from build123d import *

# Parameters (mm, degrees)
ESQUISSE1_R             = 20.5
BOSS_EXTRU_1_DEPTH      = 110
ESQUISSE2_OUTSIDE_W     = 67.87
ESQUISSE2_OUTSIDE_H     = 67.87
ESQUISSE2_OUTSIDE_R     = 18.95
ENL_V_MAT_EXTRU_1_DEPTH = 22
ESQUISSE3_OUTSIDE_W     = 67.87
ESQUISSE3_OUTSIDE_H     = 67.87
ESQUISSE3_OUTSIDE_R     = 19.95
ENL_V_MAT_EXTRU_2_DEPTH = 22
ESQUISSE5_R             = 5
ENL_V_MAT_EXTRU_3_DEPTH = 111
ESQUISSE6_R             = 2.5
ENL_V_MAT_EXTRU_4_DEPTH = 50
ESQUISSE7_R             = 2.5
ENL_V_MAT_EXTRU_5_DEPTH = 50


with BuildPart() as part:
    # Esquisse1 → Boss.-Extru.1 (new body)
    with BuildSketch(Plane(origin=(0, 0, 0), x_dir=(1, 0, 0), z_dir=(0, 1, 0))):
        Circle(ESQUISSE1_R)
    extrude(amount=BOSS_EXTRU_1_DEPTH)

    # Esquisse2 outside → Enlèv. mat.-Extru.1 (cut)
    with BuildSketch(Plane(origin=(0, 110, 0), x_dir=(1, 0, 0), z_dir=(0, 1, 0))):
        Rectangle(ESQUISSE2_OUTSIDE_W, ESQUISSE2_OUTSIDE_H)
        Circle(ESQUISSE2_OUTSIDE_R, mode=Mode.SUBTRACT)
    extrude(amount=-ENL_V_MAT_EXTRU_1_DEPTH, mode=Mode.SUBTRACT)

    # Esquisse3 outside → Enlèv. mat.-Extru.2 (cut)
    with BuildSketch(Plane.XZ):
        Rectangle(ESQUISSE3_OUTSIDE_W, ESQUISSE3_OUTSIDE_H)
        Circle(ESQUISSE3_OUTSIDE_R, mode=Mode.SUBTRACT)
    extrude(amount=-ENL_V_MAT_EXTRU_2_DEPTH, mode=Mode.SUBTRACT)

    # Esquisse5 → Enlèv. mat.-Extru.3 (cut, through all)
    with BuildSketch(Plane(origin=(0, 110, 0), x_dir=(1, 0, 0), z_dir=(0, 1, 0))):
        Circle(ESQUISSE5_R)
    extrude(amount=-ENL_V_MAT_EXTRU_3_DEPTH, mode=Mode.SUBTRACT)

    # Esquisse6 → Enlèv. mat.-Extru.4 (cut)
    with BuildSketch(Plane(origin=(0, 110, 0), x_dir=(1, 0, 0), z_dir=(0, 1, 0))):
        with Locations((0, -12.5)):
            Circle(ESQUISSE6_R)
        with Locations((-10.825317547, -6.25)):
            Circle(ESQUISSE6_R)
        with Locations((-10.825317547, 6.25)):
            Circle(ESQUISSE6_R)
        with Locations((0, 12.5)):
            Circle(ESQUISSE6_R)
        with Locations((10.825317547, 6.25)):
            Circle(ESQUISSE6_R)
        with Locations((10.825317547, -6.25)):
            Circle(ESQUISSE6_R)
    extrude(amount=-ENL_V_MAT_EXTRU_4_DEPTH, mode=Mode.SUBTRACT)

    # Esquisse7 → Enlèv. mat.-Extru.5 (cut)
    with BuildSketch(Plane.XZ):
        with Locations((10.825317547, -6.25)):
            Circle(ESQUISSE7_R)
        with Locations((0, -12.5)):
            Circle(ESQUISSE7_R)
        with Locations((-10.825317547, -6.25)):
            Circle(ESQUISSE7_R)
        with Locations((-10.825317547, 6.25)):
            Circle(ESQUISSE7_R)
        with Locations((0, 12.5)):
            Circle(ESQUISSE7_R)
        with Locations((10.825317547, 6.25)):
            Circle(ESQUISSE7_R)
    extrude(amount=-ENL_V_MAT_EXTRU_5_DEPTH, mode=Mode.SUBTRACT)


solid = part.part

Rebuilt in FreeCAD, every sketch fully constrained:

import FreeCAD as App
import Part
import Sketcher
from FreeCAD import Vector
Q = App.Units.Quantity

doc = App.newDocument("Part")
body = doc.addObject("PartDesign::Body", "Body")

# Sketch on XZ plane
sketch1 = body.newObject("Sketcher::SketchObject", "Sketch")
sketch1.AttachmentSupport = (doc.getObject("XZ_Plane"), [""])
sketch1.MapMode = "FlatFace"
sketch1.addGeometry(Part.Circle(Vector(0, 0, 0), Vector(0, 0, 1), 20), False)
sketch1.addConstraint(Sketcher.Constraint("Coincident", 0, 3, -1, 1))
sketch1.addConstraint(Sketcher.Constraint("Diameter", 0, Q("41 mm")))
pad1 = body.newObject("PartDesign::Pad", "Pad")
pad1.Profile = sketch1
pad1.Length = 110
pad1.Reversed = True

# Sketch on XZ plane
sketch2 = body.newObject("Sketcher::SketchObject", "Sketch001")
sketch2.AttachmentSupport = (doc.getObject("XZ_Plane"), [""])
sketch2.MapMode = "FlatFace"
sketch2.AttachmentOffset = App.Placement(Vector(0, 0, -110), App.Rotation())
sketch2.addGeometry(Part.LineSegment(Vector(-34, -34, 0), Vector(-34, 34, 0)), False)
sketch2.addGeometry(Part.LineSegment(Vector(-34, 34, 0), Vector(34, 34, 0)), False)
sketch2.addGeometry(Part.LineSegment(Vector(34, 34, 0), Vector(34, -34, 0)), False)
sketch2.addGeometry(Part.LineSegment(Vector(34, -34, 0), Vector(-34, -34, 0)), False)
sketch2.addGeometry(Part.Circle(Vector(0, 0, 0), Vector(0, 0, 1), 19), False)
sketch2.addConstraint(Sketcher.Constraint("Coincident", 0, 2, 1, 1))
sketch2.addConstraint(Sketcher.Constraint("Coincident", 1, 2, 2, 1))
sketch2.addConstraint(Sketcher.Constraint("Coincident", 2, 2, 3, 1))
sketch2.addConstraint(Sketcher.Constraint("Coincident", 3, 2, 0, 1))
sketch2.addConstraint(Sketcher.Constraint("Vertical", 0))
sketch2.addConstraint(Sketcher.Constraint("Horizontal", 1))
sketch2.addConstraint(Sketcher.Constraint("Vertical", 2))
sketch2.addConstraint(Sketcher.Constraint("Horizontal", 3))
sketch2.addConstraint(Sketcher.Constraint("Coincident", 4, 3, -1, 1))
sketch2.addConstraint(Sketcher.Constraint("Symmetric", 0, 2, 2, 2, -1, 1))
sketch2.addConstraint(Sketcher.Constraint("Equal", 3, 0))
sketch2.addConstraint(Sketcher.Constraint("Diameter", 4, Q("37.9 mm")))
sketch2.addConstraint(Sketcher.Constraint("DistanceX", 1, 1, 1, 2, Q("67.87 mm")))
pocket1 = body.newObject("PartDesign::Pocket", "Pocket")
pocket1.Profile = sketch2
pocket1.Length = 22
pocket1.Reversed = True

# Sketch on XZ plane
sketch3 = body.newObject("Sketcher::SketchObject", "Sketch002")
sketch3.AttachmentSupport = (doc.getObject("XZ_Plane"), [""])
sketch3.MapMode = "FlatFace"
sketch3.addGeometry(Part.LineSegment(Vector(-34, 34, 0), Vector(-34, -34, 0)), False)
sketch3.addGeometry(Part.LineSegment(Vector(-34, -34, 0), Vector(34, -34, 0)), False)
sketch3.addGeometry(Part.LineSegment(Vector(34, -34, 0), Vector(34, 34, 0)), False)
sketch3.addGeometry(Part.LineSegment(Vector(34, 34, 0), Vector(-34, 34, 0)), False)
sketch3.addGeometry(Part.Circle(Vector(0, 0, 0), Vector(0, 0, 1), 20), False)
sketch3.addConstraint(Sketcher.Constraint("Coincident", 0, 2, 1, 1))
sketch3.addConstraint(Sketcher.Constraint("Coincident", 1, 2, 2, 1))
sketch3.addConstraint(Sketcher.Constraint("Coincident", 2, 2, 3, 1))
sketch3.addConstraint(Sketcher.Constraint("Coincident", 3, 2, 0, 1))
sketch3.addConstraint(Sketcher.Constraint("Vertical", 0))
sketch3.addConstraint(Sketcher.Constraint("Horizontal", 1))
sketch3.addConstraint(Sketcher.Constraint("Vertical", 2))
sketch3.addConstraint(Sketcher.Constraint("Horizontal", 3))
sketch3.addConstraint(Sketcher.Constraint("Coincident", 4, 3, -1, 1))
sketch3.addConstraint(Sketcher.Constraint("Symmetric", 0, 2, 2, 2, -1, 1))
sketch3.addConstraint(Sketcher.Constraint("Equal", 3, 0))
sketch3.addConstraint(Sketcher.Constraint("Diameter", 4, Q("39.9 mm")))
sketch3.addConstraint(Sketcher.Constraint("DistanceX", 1, 1, 1, 2, Q("67.87 mm")))
pocket2 = body.newObject("PartDesign::Pocket", "Pocket001")
pocket2.Profile = sketch3
pocket2.Length = 22

# Sketch on XZ plane
sketch4 = body.newObject("Sketcher::SketchObject", "Sketch003")
sketch4.AttachmentSupport = (doc.getObject("XZ_Plane"), [""])
sketch4.MapMode = "FlatFace"
sketch4.AttachmentOffset = App.Placement(Vector(0, 0, -110), App.Rotation())
sketch4.addGeometry(Part.Circle(Vector(0, 0, 0), Vector(0, 0, 1), 5), False)
sketch4.addConstraint(Sketcher.Constraint("Coincident", 0, 3, -1, 1))
sketch4.addConstraint(Sketcher.Constraint("Diameter", 0, Q("10 mm")))
pocket3 = body.newObject("PartDesign::Pocket", "Pocket002")
pocket3.Profile = sketch4
pocket3.Type = "ThroughAll"
pocket3.Reversed = True

# Sketch on XZ plane
sketch5 = body.newObject("Sketcher::SketchObject", "Sketch004")
sketch5.AttachmentSupport = (doc.getObject("XZ_Plane"), [""])
sketch5.MapMode = "FlatFace"
sketch5.AttachmentOffset = App.Placement(Vector(0, 0, -110), App.Rotation())
sketch5.addGeometry(Part.Circle(Vector(0, 12.5, 0), Vector(0, 0, 1), 2.5), False)
sketch5.addGeometry(Part.Circle(Vector(-10.8, 6.2, 0), Vector(0, 0, 1), 2.5), False)
sketch5.addGeometry(Part.Circle(Vector(-10.8, -6.2, 0), Vector(0, 0, 1), 2.5), False)
sketch5.addGeometry(Part.Circle(Vector(0, -12.5, 0), Vector(0, 0, 1), 2.5), False)
sketch5.addGeometry(Part.Circle(Vector(10.8, -6.2, 0), Vector(0, 0, 1), 2.5), False)
sketch5.addGeometry(Part.Circle(Vector(10.8, 6.2, 0), Vector(0, 0, 1), 2.5), False)
sketch5.addConstraint(Sketcher.Constraint("Equal", 0, 1))
sketch5.addConstraint(Sketcher.Constraint("Equal", 1, 2))
sketch5.addConstraint(Sketcher.Constraint("Equal", 2, 3))
sketch5.addConstraint(Sketcher.Constraint("Equal", 3, 4))
sketch5.addConstraint(Sketcher.Constraint("Equal", 4, 5))
sketch5.addConstraint(Sketcher.Constraint("Symmetric", 0, 3, 3, 3, -1, 1))
sketch5.addConstraint(Sketcher.Constraint("Symmetric", 1, 3, 4, 3, -1, 1))
sketch5.addConstraint(Sketcher.Constraint("Symmetric", 2, 3, 5, 3, -1, 1))
sketch5.addConstraint(Sketcher.Constraint("Symmetric", 2, 3, 4, 3, -2))
sketch5.addConstraint(Sketcher.Constraint("PointOnObject", 0, 3, -2))
sketch5.addConstraint(Sketcher.Constraint("Diameter", 0, Q("5 mm")))
sketch5.addConstraint(Sketcher.Constraint("DistanceY", 3, 3, 0, 3, Q("25 mm")))
sketch5.addConstraint(Sketcher.Constraint("DistanceY", 2, 3, 1, 3, Q("12.5 mm")))
sketch5.addConstraint(Sketcher.Constraint("DistanceX", 1, 3, -1, 1, Q("10.825318 mm")))
pocket4 = body.newObject("PartDesign::Pocket", "Pocket003")
pocket4.Profile = sketch5
pocket4.Length = 50
pocket4.Reversed = True

# Sketch on XZ plane
sketch6 = body.newObject("Sketcher::SketchObject", "Sketch005")
sketch6.AttachmentSupport = (doc.getObject("XZ_Plane"), [""])
sketch6.MapMode = "FlatFace"
sketch6.addGeometry(Part.Circle(Vector(10.8, -6.2, 0), Vector(0, 0, 1), 2.5), False)
sketch6.addGeometry(Part.Circle(Vector(0, -12.5, 0), Vector(0, 0, 1), 2.5), False)
sketch6.addGeometry(Part.Circle(Vector(-10.8, -6.2, 0), Vector(0, 0, 1), 2.5), False)
sketch6.addGeometry(Part.Circle(Vector(-10.8, 6.2, 0), Vector(0, 0, 1), 2.5), False)
sketch6.addGeometry(Part.Circle(Vector(0, 12.5, 0), Vector(0, 0, 1), 2.5), False)
sketch6.addGeometry(Part.Circle(Vector(10.8, 6.2, 0), Vector(0, 0, 1), 2.5), False)
sketch6.addConstraint(Sketcher.Constraint("Equal", 0, 1))
sketch6.addConstraint(Sketcher.Constraint("Equal", 1, 2))
sketch6.addConstraint(Sketcher.Constraint("Equal", 2, 3))
sketch6.addConstraint(Sketcher.Constraint("Equal", 3, 4))
sketch6.addConstraint(Sketcher.Constraint("Equal", 4, 5))
sketch6.addConstraint(Sketcher.Constraint("Symmetric", 0, 3, 3, 3, -1, 1))
sketch6.addConstraint(Sketcher.Constraint("Symmetric", 1, 3, 4, 3, -1, 1))
sketch6.addConstraint(Sketcher.Constraint("Symmetric", 2, 3, 5, 3, -1, 1))
sketch6.addConstraint(Sketcher.Constraint("Symmetric", 0, 3, 2, 3, -2))
sketch6.addConstraint(Sketcher.Constraint("PointOnObject", 1, 3, -2))
sketch6.addConstraint(Sketcher.Constraint("Diameter", 0, Q("5 mm")))
sketch6.addConstraint(Sketcher.Constraint("DistanceY", 1, 3, 4, 3, Q("25 mm")))
sketch6.addConstraint(Sketcher.Constraint("DistanceY", 2, 3, 3, 3, Q("12.5 mm")))
sketch6.addConstraint(Sketcher.Constraint("DistanceX", -1, 1, 0, 3, Q("10.825318 mm")))
pocket5 = body.newObject("PartDesign::Pocket", "Pocket004")
pocket5.Profile = sketch6
pocket5.Length = 50

doc.recompute()
